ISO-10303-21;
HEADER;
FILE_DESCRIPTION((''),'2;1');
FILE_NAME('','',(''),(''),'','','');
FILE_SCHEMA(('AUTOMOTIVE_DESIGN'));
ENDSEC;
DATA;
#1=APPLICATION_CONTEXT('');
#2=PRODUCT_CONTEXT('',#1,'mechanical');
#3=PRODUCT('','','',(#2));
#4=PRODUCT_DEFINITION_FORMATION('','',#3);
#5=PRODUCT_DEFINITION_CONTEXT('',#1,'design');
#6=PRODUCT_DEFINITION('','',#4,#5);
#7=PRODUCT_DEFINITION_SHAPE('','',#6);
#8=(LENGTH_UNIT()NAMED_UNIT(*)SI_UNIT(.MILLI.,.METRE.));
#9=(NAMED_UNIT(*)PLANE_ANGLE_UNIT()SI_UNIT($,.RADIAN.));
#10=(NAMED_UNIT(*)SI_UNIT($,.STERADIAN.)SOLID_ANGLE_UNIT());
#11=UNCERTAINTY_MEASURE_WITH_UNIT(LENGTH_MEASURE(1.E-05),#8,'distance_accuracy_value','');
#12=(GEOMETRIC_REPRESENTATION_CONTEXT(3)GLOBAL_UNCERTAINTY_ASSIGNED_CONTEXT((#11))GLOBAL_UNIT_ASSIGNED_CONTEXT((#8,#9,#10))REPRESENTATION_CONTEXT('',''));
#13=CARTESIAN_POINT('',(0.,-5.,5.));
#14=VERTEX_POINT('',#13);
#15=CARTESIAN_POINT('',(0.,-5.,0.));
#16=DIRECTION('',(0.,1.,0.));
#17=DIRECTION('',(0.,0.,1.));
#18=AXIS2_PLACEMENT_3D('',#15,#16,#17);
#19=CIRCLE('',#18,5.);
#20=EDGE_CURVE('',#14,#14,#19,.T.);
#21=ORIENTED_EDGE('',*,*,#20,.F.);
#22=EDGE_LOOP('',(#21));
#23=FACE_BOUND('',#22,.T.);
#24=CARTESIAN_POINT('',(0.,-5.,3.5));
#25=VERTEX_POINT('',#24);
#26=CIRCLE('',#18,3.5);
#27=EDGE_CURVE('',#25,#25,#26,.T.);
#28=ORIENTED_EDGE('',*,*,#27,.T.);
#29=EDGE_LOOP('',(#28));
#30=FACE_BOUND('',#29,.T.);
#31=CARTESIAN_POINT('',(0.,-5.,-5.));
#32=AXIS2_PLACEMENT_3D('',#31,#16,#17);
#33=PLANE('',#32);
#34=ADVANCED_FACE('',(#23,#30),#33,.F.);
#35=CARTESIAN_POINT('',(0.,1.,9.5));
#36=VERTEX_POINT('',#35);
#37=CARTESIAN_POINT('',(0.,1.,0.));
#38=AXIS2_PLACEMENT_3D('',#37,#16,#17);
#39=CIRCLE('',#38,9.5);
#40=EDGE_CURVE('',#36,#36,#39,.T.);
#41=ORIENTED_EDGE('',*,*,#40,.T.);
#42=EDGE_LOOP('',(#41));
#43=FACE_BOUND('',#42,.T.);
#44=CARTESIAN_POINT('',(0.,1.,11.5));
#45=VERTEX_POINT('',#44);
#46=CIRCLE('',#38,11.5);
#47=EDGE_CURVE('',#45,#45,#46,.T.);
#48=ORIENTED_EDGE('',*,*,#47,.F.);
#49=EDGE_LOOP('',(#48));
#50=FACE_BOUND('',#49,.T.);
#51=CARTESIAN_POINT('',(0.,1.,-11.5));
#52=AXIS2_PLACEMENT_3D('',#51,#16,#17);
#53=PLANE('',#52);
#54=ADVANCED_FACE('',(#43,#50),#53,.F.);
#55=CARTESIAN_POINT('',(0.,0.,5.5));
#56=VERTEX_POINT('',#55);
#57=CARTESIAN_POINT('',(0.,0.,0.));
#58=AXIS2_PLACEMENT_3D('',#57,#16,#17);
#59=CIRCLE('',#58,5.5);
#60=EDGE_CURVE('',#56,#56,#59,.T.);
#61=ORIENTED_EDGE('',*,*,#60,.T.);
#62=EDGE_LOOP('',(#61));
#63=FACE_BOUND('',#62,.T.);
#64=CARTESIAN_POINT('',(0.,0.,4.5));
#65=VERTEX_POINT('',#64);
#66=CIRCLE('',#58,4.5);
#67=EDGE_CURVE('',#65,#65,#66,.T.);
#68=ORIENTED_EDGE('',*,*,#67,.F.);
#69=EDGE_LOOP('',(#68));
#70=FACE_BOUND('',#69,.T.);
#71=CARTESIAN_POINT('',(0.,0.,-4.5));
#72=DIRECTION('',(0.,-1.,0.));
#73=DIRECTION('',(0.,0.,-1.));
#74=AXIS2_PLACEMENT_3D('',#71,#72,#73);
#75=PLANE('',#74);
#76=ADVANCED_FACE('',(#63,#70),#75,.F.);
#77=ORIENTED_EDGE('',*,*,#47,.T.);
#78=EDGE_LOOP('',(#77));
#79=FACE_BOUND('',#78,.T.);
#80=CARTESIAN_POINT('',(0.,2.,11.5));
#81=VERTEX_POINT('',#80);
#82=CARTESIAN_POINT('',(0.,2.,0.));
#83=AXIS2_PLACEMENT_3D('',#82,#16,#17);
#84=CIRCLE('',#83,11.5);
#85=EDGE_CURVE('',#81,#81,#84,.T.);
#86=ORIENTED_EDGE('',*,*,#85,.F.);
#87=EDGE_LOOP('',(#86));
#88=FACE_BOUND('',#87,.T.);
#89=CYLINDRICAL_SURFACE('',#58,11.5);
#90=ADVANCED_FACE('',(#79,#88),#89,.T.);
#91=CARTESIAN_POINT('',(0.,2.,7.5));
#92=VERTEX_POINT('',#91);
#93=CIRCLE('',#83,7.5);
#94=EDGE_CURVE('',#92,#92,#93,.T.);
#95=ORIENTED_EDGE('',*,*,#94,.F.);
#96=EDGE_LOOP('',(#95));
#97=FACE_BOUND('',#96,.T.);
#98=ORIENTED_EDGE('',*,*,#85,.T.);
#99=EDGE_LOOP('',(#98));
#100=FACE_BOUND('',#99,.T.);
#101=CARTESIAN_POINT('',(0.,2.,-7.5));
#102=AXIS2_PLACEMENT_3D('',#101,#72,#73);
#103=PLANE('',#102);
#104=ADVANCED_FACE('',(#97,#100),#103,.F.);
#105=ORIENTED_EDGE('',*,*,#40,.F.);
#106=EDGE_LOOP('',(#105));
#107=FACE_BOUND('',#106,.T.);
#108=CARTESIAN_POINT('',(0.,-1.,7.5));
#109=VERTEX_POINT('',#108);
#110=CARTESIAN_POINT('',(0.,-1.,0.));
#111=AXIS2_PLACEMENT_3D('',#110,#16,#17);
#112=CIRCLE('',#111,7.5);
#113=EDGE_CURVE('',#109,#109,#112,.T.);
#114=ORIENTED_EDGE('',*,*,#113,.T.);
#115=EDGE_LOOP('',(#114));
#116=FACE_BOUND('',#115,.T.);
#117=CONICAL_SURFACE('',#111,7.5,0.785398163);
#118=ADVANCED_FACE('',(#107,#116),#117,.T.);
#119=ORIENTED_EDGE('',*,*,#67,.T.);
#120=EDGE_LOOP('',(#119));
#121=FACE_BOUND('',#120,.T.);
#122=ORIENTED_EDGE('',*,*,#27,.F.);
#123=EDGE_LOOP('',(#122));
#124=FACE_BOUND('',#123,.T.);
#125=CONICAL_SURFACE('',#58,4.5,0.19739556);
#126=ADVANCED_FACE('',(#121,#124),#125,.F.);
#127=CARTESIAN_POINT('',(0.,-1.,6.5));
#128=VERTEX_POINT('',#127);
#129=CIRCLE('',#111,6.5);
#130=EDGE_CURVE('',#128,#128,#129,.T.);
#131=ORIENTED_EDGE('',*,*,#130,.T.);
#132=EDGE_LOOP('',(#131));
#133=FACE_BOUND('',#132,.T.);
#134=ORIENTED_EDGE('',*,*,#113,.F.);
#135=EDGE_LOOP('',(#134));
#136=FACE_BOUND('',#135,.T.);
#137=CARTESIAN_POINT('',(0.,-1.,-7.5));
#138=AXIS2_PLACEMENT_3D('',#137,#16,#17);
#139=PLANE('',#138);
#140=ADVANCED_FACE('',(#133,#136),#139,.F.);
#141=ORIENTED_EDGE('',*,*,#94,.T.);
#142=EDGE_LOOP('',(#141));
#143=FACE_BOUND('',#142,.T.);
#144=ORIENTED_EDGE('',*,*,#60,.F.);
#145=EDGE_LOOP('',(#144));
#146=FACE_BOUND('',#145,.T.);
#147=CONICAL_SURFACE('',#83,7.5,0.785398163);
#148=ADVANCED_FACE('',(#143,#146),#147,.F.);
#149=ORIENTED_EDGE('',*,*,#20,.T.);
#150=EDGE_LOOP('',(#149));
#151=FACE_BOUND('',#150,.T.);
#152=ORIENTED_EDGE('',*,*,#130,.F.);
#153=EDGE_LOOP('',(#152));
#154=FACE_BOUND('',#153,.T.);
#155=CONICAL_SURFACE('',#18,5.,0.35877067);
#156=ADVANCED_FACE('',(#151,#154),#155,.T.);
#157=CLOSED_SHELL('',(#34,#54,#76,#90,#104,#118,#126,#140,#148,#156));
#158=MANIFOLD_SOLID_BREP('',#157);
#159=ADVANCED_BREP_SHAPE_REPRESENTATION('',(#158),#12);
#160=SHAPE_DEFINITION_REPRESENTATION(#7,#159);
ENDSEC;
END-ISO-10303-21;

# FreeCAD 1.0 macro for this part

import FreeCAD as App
import Part
import Sketcher

V = App.Vector
Q = App.Units.Quantity

doc = App.newDocument("Part")
body = doc.addObject("PartDesign::Body", "Body")

# Sketch on YZ plane
sketch1 = doc.addObject("Sketcher::SketchObject", "Sketch")
body.addObject(sketch1)
sketch1.AttachmentSupport = (doc.YZ_Plane, [""])
sketch1.MapMode = "FlatFace"
sketch1.addGeometry([
    Part.LineSegment(V(0, -4.5, 0), V(-5, -3.5, 0)),  # 0
    Part.LineSegment(V(-5, -3.5, 0), V(-5, -5, 0)),  # 1
    Part.LineSegment(V(-5, -5, 0), V(-1, -6.5, 0)),  # 2
    Part.LineSegment(V(-1, -6.5, 0), V(-1, -7.5, 0)),  # 3
    Part.LineSegment(V(-1, -7.5, 0), V(1, -9.5, 0)),  # 4
    Part.LineSegment(V(1, -9.5, 0), V(1, -11.5, 0)),  # 5
    Part.LineSegment(V(1, -11.5, 0), V(2, -11.5, 0)),  # 6
    Part.LineSegment(V(2, -11.5, 0), V(2, -7.5, 0)),  # 7
    Part.LineSegment(V(2, -7.5, 0), V(0, -5.5, 0)),  # 8
    Part.LineSegment(V(0, -5.5, 0), V(0, -4.5, 0)),  # 9
], False)
sketch1.addConstraint([
    Sketcher.Constraint("Coincident", 0, 2, 1, 1),
    Sketcher.Constraint("Coincident", 1, 2, 2, 1),
    Sketcher.Constraint("Coincident", 2, 2, 3, 1),
    Sketcher.Constraint("Coincident", 3, 2, 4, 1),
    Sketcher.Constraint("Coincident", 4, 2, 5, 1),
    Sketcher.Constraint("Coincident", 5, 2, 6, 1),
    Sketcher.Constraint("Coincident", 6, 2, 7, 1),
    Sketcher.Constraint("Coincident", 7, 2, 8, 1),
    Sketcher.Constraint("Coincident", 8, 2, 9, 1),
    Sketcher.Constraint("Coincident", 9, 2, 0, 1),
    Sketcher.Constraint("Vertical", 1),
    Sketcher.Constraint("Vertical", 3),
    Sketcher.Constraint("Vertical", 5),
    Sketcher.Constraint("Horizontal", 6),
    Sketcher.Constraint("Vertical", 7),
    Sketcher.Constraint("Vertical", 9),
    Sketcher.Constraint("PointOnObject", 8, 2, -2),
    Sketcher.Constraint("Parallel", 4, 8),
    Sketcher.Constraint("Horizontal", 3, 2, 7, 2),
    Sketcher.Constraint("Equal", 6, 3),
    Sketcher.Constraint("Equal", 3, 9),
    Sketcher.Constraint("Equal", 4, 8),
    Sketcher.Constraint("DistanceX", 6, 1, 6, 2, 1.0),
    Sketcher.Constraint("DistanceY", 5, 2, 5, 1, 2.0),
    Sketcher.Constraint("DistanceY", 7, 1, 7, 2, 4.0),
    Sketcher.Constraint("Angle", 4, Q("-45 deg")),
    Sketcher.Constraint("DistanceY", 1, 2, 1, 1, 1.5),
    Sketcher.Constraint("DistanceX", 0, 2, -1, 1, 5.0),
    Sketcher.Constraint("DistanceY", 1, 2, -1, 1, 5.0),
    Sketcher.Constraint("DistanceY", 2, 2, 0, 2, 3.0),
])
revolution = doc.addObject("PartDesign::Revolution", "Revolution")
body.addObject(revolution)
revolution.Profile = sketch1
revolution.ReferenceAxis = (sketch1, ["H_Axis"])
revolution.Angle = 360

doc.recompute()
